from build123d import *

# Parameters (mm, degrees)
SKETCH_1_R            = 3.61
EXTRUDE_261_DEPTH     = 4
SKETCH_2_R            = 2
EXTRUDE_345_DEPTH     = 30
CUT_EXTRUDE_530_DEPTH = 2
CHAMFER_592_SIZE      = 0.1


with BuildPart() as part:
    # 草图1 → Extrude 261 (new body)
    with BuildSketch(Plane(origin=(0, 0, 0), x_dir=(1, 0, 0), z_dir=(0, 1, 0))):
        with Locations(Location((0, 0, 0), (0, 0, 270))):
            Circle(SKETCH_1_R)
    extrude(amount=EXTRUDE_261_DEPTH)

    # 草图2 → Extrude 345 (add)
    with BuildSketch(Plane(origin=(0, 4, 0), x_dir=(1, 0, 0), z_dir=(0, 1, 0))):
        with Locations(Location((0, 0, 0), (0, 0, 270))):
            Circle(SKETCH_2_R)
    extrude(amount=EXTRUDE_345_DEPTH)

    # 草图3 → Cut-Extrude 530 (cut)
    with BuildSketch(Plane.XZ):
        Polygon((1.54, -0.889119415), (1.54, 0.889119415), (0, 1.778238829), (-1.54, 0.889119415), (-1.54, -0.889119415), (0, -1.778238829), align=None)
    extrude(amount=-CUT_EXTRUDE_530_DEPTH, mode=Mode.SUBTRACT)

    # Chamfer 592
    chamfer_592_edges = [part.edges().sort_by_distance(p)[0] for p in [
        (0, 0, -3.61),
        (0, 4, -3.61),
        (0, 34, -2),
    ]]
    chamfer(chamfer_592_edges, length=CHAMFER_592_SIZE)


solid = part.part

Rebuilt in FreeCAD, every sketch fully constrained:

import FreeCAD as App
import Part
import Sketcher

V = App.Vector
Q = App.Units.Quantity


def edges_at(feature, points):
    """Names of the edges that pass closest to the given points."""
    edges = feature.Shape.Edges
    near = lambda p: min(range(len(edges)), key=lambda i: edges[i].distToShape(Part.Vertex(*p))[0])
    return sorted({f"Edge{near(p) + 1}" for p in points})


def add_polygon(sketch, points):
    """Adds a closed chain of lines whose ends are joined by coincident constraints."""
    first, n = sketch.GeometryCount, len(points)
    for a, b in zip(points, points[1:] + points[:1]):
        sketch.addGeometry(Part.LineSegment(App.Vector(*a, 0), App.Vector(*b, 0)), False)
    for i in range(n):
        sketch.addConstraint(Sketcher.Constraint("Coincident", first + i, 2, first + (i + 1) % n, 1))

doc = App.newDocument("Part")
body = doc.addObject("PartDesign::Body", "Body")

sketch1 = body.newObject("Sketcher::SketchObject", "Sketch")
sketch1.AttachmentSupport = (doc.getObject("XZ_Plane"), [""])
sketch1.MapMode = "FlatFace"
sketch1.addGeometry(Part.Circle(V(0, 0, 0), V(0, 0, 1), 3.61), False)
sketch1.addConstraint([
    Sketcher.Constraint("Coincident", 0, 3, -1, 1),
    Sketcher.Constraint("Diameter", 0, Q("7.22 mm")),
])
pad1 = body.newObject("PartDesign::Pad", "Pad")
pad1.Profile = sketch1
pad1.Length = 4
pad1.Reversed = True

sketch2 = body.newObject("Sketcher::SketchObject", "Sketch001")
sketch2.AttachmentSupport = (doc.getObject("XZ_Plane"), [""])
sketch2.MapMode = "FlatFace"
sketch2.AttachmentOffset = App.Placement(V(0, 0, -4), App.Rotation())
sketch2.addGeometry(Part.Circle(V(0, 0, 0), V(0, 0, 1), 2), False)
sketch2.addConstraint([
    Sketcher.Constraint("Coincident", 0, 3, -1, 1),
    Sketcher.Constraint("Diameter", 0, Q("4 mm")),
])
pad2 = body.newObject("PartDesign::Pad", "Pad001")
pad2.Profile = sketch2
pad2.Length = 30
pad2.Reversed = True

sketch3 = body.newObject("Sketcher::SketchObject", "Sketch002")
sketch3.AttachmentSupport = (doc.getObject("XZ_Plane"), [""])
sketch3.MapMode = "FlatFace"
add_polygon(sketch3, [(1.54, -0.889119), (1.54, 0.889119), (0, 1.778239), (-1.54, 0.889119), (-1.54, -0.889119), (0, -1.778239)])
sketch3.addConstraint([
    Sketcher.Constraint("Vertical", 0),
    Sketcher.Constraint("Vertical", 3),
    Sketcher.Constraint("Symmetric", 0, 2, 3, 2, -1, 1),
    Sketcher.Constraint("Symmetric", 1, 2, 4, 2, -1, 1),
    Sketcher.Constraint("PointOnObject", 1, 2, -2),
    Sketcher.Constraint("Parallel", 2, 5),
    Sketcher.Constraint("Horizontal", 0, 2, 2, 2),
    Sketcher.Constraint("Angle", 1, Q("150 deg")),
    Sketcher.Constraint("DistanceX", -1, 1, 0, 2, Q("1.54 mm")),
    Sketcher.Constraint("DistanceY", 0, 1, 0, 2, Q("1.778239 mm")),
])
pocket1 = body.newObject("PartDesign::Pocket", "Pocket")
pocket1.Profile = sketch3
pocket1.Length = 2
doc.recompute()

chamfer = body.newObject("PartDesign::Chamfer", "Chamfer")
chamfer.Base = (pocket1, edges_at(pocket1, [(0, 0, -3.61), (0, 4, -3.61), (0, 34, -2)]))
chamfer.Size = 0.1

doc.recompute()
